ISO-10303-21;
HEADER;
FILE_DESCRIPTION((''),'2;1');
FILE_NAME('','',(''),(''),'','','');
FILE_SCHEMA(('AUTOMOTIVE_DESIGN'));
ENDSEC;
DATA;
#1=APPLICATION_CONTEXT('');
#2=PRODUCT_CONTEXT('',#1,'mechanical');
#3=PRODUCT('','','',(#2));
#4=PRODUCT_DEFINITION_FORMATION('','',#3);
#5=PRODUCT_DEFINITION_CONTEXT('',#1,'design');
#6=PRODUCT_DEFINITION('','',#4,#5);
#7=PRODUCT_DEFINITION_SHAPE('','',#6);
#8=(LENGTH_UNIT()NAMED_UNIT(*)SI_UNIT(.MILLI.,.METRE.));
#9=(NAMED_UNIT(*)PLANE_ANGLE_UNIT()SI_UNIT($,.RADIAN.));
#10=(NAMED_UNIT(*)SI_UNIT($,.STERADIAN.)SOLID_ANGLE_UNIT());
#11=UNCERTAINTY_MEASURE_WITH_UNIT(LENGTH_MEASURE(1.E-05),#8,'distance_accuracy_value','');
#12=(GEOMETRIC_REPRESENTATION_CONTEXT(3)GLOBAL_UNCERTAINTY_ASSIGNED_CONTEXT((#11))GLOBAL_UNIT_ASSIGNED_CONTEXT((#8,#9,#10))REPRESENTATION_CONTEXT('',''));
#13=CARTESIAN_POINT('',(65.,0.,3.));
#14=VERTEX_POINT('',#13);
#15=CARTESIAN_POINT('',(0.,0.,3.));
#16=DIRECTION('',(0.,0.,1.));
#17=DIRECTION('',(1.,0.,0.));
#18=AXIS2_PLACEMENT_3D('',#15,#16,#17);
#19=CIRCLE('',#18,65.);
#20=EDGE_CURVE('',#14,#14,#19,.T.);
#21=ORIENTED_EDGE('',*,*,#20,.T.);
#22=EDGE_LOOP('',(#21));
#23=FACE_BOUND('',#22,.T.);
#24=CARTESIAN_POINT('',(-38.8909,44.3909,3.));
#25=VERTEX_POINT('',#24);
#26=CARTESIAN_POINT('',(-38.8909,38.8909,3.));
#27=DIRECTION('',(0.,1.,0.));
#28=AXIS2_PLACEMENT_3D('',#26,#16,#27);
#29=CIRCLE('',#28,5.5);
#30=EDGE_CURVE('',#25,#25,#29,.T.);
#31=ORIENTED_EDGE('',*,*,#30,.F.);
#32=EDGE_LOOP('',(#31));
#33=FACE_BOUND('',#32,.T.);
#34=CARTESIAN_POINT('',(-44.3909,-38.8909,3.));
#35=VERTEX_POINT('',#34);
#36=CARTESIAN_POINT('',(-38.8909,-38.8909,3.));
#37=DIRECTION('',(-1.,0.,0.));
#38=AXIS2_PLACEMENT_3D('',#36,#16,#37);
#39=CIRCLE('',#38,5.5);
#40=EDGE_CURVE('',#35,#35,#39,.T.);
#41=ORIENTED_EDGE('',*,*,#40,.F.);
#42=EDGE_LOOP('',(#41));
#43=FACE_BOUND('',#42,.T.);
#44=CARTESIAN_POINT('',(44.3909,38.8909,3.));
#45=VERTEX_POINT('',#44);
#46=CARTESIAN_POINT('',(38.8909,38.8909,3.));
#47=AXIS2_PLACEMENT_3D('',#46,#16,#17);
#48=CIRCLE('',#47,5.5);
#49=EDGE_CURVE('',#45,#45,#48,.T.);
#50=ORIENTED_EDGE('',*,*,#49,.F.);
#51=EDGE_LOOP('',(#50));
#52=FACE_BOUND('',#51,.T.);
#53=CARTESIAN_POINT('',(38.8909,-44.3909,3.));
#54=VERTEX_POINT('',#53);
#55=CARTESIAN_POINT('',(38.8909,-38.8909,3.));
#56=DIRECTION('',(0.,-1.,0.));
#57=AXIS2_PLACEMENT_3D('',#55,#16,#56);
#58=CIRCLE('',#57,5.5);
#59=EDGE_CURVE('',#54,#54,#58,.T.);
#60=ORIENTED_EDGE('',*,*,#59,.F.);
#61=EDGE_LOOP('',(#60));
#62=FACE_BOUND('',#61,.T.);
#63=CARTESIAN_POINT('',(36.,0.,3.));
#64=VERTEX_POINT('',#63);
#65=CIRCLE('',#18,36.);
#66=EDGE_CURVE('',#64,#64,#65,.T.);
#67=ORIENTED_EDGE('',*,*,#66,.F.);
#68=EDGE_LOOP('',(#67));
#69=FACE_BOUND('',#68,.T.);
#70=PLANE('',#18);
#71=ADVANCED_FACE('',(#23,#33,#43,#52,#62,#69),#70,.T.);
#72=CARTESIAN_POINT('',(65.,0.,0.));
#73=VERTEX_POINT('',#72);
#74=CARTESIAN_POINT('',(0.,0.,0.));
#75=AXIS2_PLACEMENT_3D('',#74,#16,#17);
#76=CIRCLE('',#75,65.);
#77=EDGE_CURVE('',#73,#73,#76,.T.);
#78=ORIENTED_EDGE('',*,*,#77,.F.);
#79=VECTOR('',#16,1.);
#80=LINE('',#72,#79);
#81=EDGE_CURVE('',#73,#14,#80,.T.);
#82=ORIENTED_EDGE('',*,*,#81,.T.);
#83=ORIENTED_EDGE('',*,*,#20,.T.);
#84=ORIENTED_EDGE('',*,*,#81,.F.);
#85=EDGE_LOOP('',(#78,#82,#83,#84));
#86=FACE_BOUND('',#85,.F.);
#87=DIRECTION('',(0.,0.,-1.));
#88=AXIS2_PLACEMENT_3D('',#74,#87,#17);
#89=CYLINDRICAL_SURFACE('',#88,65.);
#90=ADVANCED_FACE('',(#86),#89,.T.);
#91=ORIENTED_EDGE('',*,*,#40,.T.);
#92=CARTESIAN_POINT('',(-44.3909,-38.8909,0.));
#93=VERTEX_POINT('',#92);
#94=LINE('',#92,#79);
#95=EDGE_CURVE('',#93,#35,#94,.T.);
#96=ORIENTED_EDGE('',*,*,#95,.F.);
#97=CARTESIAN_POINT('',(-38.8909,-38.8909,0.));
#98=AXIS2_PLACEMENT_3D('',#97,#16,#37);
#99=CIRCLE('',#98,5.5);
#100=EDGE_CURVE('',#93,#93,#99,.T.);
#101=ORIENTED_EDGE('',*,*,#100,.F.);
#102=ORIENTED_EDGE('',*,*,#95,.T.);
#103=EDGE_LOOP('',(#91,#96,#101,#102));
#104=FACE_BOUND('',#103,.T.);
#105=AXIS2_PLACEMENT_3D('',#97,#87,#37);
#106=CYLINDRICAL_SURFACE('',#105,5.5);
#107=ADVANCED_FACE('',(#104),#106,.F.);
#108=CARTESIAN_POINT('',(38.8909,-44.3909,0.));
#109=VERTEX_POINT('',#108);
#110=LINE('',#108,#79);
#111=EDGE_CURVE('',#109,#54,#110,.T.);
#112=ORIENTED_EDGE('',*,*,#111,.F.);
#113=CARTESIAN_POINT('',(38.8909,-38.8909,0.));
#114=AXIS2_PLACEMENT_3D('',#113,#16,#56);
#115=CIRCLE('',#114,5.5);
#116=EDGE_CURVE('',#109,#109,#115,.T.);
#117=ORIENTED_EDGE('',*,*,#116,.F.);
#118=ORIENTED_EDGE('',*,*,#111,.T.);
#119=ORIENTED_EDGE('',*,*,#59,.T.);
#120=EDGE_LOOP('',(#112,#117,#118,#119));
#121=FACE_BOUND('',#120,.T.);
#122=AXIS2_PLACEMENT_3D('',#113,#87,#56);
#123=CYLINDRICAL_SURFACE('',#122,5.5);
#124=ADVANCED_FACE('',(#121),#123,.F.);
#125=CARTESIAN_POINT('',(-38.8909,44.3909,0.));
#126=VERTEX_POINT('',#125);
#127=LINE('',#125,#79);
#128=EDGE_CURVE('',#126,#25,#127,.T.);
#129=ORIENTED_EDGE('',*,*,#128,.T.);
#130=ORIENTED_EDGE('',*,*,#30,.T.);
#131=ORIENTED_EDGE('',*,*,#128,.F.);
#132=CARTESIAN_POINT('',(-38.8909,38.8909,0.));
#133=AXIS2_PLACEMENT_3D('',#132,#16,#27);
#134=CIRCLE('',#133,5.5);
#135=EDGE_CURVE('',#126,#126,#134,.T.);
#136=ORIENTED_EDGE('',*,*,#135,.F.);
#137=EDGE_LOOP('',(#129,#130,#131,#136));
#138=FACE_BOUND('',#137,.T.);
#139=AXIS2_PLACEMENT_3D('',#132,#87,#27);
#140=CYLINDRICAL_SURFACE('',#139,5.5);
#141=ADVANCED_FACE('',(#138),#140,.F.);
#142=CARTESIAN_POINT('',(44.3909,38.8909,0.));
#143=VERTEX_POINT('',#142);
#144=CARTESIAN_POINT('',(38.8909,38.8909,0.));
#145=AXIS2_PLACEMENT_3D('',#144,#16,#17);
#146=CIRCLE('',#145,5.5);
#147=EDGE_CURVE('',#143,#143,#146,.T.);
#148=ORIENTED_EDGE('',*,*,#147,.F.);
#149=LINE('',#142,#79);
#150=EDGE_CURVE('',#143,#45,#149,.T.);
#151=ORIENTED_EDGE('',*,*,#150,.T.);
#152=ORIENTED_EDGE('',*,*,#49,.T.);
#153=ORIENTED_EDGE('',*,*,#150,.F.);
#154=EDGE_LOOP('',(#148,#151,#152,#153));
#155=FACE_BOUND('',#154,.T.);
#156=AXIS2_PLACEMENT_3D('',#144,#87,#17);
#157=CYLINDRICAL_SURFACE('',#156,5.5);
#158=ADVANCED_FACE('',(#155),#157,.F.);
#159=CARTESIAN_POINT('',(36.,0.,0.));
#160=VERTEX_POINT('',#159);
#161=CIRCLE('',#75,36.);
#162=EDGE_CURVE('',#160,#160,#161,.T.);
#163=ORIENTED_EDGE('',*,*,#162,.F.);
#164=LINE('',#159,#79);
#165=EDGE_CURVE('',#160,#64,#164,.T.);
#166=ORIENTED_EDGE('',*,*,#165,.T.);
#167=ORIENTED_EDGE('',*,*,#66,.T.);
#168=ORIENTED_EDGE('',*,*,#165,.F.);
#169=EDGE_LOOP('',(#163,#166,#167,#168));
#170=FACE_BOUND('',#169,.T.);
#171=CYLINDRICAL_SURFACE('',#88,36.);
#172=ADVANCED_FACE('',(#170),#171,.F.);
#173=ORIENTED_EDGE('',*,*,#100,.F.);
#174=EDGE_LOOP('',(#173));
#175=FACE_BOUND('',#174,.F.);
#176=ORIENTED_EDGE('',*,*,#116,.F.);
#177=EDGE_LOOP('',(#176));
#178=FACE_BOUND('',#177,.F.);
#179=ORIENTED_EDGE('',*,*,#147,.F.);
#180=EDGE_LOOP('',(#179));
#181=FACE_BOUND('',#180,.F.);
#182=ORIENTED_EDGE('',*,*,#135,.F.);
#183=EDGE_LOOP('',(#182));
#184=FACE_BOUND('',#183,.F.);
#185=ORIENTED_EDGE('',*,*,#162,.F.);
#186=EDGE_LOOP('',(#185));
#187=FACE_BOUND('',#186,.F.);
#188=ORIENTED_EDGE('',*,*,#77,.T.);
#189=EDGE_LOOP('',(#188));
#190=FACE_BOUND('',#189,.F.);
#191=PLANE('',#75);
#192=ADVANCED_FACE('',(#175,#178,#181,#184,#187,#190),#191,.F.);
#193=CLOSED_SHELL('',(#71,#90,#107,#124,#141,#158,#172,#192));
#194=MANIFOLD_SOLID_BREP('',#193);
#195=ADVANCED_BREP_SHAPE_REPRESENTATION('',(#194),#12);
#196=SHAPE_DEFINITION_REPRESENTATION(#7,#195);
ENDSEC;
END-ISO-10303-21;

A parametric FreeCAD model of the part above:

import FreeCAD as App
import Part
import Sketcher
from FreeCAD import Vector
Q = App.Units.Quantity

doc = App.newDocument("Part")
body = doc.addObject("PartDesign::Body", "Body")

# Sketch on XY plane
sketch1 = body.newObject("Sketcher::SketchObject", "Sketch")
sketch1.AttachmentSupport = (doc.getObject("XY_Plane"), [""])
sketch1.MapMode = "FlatFace"
sketch1.addGeometry([
    Part.Circle(Vector(0, 0, 0), Vector(0, 0, 1), 65),
    Part.Circle(Vector(0, 0, 0), Vector(0, 0, 1), 36),
], False)
sketch1.addConstraint([
    Sketcher.Constraint("Coincident", 0, 3, -1, 1),
    Sketcher.Constraint("Coincident", 1, 3, -1, 1),
    Sketcher.Constraint("Diameter", 0, Q("130 mm")),
    Sketcher.Constraint("Diameter", 1, Q("72 mm")),
])
pad1 = body.newObject("PartDesign::Pad", "Pad")
pad1.Profile = sketch1
pad1.Length = 3

# Sketch on XY plane
sketch2 = body.newObject("Sketcher::SketchObject", "Sketch001")
sketch2.AttachmentSupport = (doc.getObject("XY_Plane"), [""])
sketch2.MapMode = "FlatFace"
sketch2.addGeometry(Part.Circle(Vector(39, 39, 0), Vector(0, 0, 1), 6), False)
sketch2.addConstraint([
    Sketcher.Constraint("Diameter", 0, Q("11 mm")),
    Sketcher.Constraint("DistanceX", -1, 1, 0, 3, Q("38.891 mm")),
    Sketcher.Constraint("DistanceY", -1, 1, 0, 3, Q("38.891 mm")),
])
pocket1 = body.newObject("PartDesign::Pocket", "Pocket")
pocket1.Profile = sketch2
pocket1.Length = 3
pocket1.Reversed = True
doc.recompute()

polarpattern = body.newObject("PartDesign::PolarPattern", "PolarPattern")
polarpattern.Originals = [pocket1]
polarpattern.Axis = (doc.getObject("Z_Axis"), [""])
polarpattern.Angle = 360
polarpattern.Occurrences = 4
body.Tip = polarpattern

doc.recompute()
